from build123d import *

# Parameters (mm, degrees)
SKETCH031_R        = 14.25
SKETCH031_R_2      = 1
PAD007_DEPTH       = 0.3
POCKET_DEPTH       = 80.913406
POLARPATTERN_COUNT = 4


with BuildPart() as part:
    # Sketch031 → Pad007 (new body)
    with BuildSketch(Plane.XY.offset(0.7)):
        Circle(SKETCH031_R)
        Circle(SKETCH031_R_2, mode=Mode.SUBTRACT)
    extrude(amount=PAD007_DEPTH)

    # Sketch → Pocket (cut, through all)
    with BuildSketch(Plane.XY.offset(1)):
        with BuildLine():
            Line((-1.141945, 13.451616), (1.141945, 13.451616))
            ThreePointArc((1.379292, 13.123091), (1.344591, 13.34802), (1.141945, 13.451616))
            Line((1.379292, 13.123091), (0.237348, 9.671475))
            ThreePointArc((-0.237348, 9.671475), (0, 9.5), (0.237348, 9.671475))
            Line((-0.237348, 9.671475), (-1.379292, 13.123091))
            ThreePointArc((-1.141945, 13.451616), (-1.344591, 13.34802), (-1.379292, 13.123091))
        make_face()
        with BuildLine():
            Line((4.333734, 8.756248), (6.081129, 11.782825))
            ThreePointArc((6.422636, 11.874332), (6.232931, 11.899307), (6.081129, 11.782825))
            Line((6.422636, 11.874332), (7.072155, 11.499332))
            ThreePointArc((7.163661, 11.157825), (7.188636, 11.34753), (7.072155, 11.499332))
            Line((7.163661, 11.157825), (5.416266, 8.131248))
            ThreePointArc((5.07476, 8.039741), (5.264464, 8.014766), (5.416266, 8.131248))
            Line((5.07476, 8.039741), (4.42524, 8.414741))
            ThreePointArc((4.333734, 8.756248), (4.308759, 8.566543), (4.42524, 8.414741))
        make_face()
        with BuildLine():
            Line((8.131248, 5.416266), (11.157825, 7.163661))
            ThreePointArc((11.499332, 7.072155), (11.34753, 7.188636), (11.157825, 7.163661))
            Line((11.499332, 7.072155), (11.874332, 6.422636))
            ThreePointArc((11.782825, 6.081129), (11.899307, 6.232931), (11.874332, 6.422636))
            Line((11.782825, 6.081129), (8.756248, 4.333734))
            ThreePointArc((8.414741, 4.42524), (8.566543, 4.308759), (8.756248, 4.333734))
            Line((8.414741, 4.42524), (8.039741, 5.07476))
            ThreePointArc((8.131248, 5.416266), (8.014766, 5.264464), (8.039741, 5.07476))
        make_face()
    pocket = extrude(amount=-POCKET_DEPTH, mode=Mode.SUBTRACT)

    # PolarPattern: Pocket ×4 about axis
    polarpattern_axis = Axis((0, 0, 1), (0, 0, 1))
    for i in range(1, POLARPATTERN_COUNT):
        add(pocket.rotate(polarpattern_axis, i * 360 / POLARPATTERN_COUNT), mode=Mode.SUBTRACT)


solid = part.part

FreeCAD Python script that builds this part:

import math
import FreeCAD as App
import Part
import Sketcher
from FreeCAD import Vector
Q = App.Units.Quantity

doc = App.newDocument("Part")
params = doc.addObject("Spreadsheet::Sheet", "Params")
for row, (alias, value) in enumerate([
    ("sketch1_diameter", "2 mm"),
    ("sketch1_diameter2", "28.5 mm"),
    ("pad1_length", "0.3 mm"),
    ("sketch2_radius", "0.250001 mm"),
    ("sketch2_length", "0.750001 mm"),
], start=1):
    params.set(f"A{row}", alias)
    params.set(f"B{row}", "=" + value)
    params.setAlias(f"B{row}", alias)

body = doc.addObject("PartDesign::Body", "Body")

# Sketch on XY plane
sketch1 = doc.addObject("Sketcher::SketchObject", "Sketch")
body.addObject(sketch1)
sketch1.AttachmentSupport = (doc.XY_Plane, [""])
sketch1.MapMode = "FlatFace"
sketch1.AttachmentOffset = App.Placement(Vector(0, 0, 0.7), App.Rotation())
sketch1.addGeometry([
    Part.Circle(Vector(0, 0, 0), Vector(0, 0, 1), 14.2),
    Part.Circle(Vector(0, 0, 0), Vector(0, 0, 1), 1),
], False)
sketch1.addConstraint([
    Sketcher.Constraint("Coincident", 0, 3, -1, 1),
    Sketcher.Constraint("Coincident", 1, 3, -1, 1),
    Sketcher.Constraint("Diameter", 1, 2.0),
    Sketcher.Constraint("Diameter", 0, 28.5),
])
sketch1.setExpression("Constraints[2]", "Params.sketch1_diameter")
sketch1.setExpression("Constraints[3]", "Params.sketch1_diameter2")
pad1 = doc.addObject("PartDesign::Pad", "Pad")
body.addObject(pad1)
pad1.Profile = sketch1
pad1.setExpression("Length", "Params.pad1_length")

# Sketch on XY plane
sketch2 = doc.addObject("Sketcher::SketchObject", "Sketch001")
body.addObject(sketch2)
sketch2.AttachmentSupport = (doc.XY_Plane, [""])
sketch2.MapMode = "FlatFace"
sketch2.AttachmentOffset = App.Placement(Vector(0, 0, 1), App.Rotation())
sketch2.addGeometry([
    Part.LineSegment(Vector(1.14, 13.45, 0), Vector(-1.14, 13.45, 0)),  # 0
    Part.ArcOfCircle(Part.Circle(Vector(-1.14, 13.2, 0), Vector(0, 0, 1), 0.25), math.radians(90), math.radians(198)),  # 1
    Part.LineSegment(Vector(-1.38, 13.12, 0), Vector(-0.24, 9.67, 0)),  # 2
    Part.ArcOfCircle(Part.Circle(Vector(0, 9.75, 0), Vector(0, 0, 1), 0.25), math.radians(-162), math.radians(-18)),  # 3
    Part.LineSegment(Vector(0.24, 9.67, 0), Vector(1.38, 13.12, 0)),  # 4
    Part.ArcOfCircle(Part.Circle(Vector(1.14, 13.2, 0), Vector(0, 0, 1), 0.25), math.radians(-18), math.radians(90)),  # 5
    Part.LineSegment(Vector(6.08, 11.78, 0), Vector(4.33, 8.76, 0)),  # 6
    Part.ArcOfCircle(Part.Circle(Vector(4.55, 8.63, 0), Vector(0, 0, 1), 0.25), math.radians(150), math.radians(240)),  # 7
    Part.LineSegment(Vector(4.43, 8.41, 0), Vector(5.07, 8.04, 0)),  # 8
    Part.ArcOfCircle(Part.Circle(Vector(5.2, 8.26, 0), Vector(0, 0, 1), 0.25), math.radians(-120), math.radians(-30)),  # 9
    Part.LineSegment(Vector(5.42, 8.13, 0), Vector(7.16, 11.16, 0)),  # 10
    Part.ArcOfCircle(Part.Circle(Vector(6.95, 11.28, 0), Vector(0, 0, 1), 0.25), math.radians(-30), math.radians(60)),  # 11
    Part.LineSegment(Vector(7.07, 11.5, 0), Vector(6.42, 11.87, 0)),  # 12
    Part.ArcOfCircle(Part.Circle(Vector(6.3, 11.66, 0), Vector(0, 0, 1), 0.25), math.radians(60), math.radians(150)),  # 13
    Part.LineSegment(Vector(11.16, 7.16, 0), Vector(8.13, 5.42, 0)),  # 14
    Part.ArcOfCircle(Part.Circle(Vector(8.26, 5.2, 0), Vector(0, 0, 1), 0.25), math.radians(120), math.radians(210)),  # 15
    Part.LineSegment(Vector(8.04, 5.07, 0), Vector(8.41, 4.43, 0)),  # 16
    Part.ArcOfCircle(Part.Circle(Vector(8.63, 4.55, 0), Vector(0, 0, 1), 0.25), math.radians(-150), math.radians(-60)),  # 17
    Part.LineSegment(Vector(8.76, 4.33, 0), Vector(11.78, 6.08, 0)),  # 18
    Part.ArcOfCircle(Part.Circle(Vector(11.66, 6.3, 0), Vector(0, 0, 1), 0.25), math.radians(-60), math.radians(30)),  # 19
    Part.LineSegment(Vector(11.87, 6.42, 0), Vector(11.5, 7.07, 0)),  # 20
    Part.ArcOfCircle(Part.Circle(Vector(11.28, 6.95, 0), Vector(0, 0, 1), 0.25), math.radians(30), math.radians(120)),  # 21
], False)
sketch2.addConstraint([
    Sketcher.Constraint("Coincident", 0, 2, 1, 1),
    Sketcher.Constraint("Coincident", 1, 2, 2, 1),
    Sketcher.Constraint("Coincident", 2, 2, 3, 1),
    Sketcher.Constraint("Coincident", 3, 2, 4, 1),
    Sketcher.Constraint("Coincident", 4, 2, 5, 1),
    Sketcher.Constraint("Coincident", 5, 2, 0, 1),
    Sketcher.Constraint("Coincident", 6, 2, 7, 1),
    Sketcher.Constraint("Coincident", 7, 2, 8, 1),
    Sketcher.Constraint("Tangent", 8, 2, 9, 1),
    Sketcher.Constraint("Coincident", 9, 2, 10, 1),
    Sketcher.Constraint("Coincident", 10, 2, 11, 1),
    Sketcher.Constraint("Coincident", 11, 2, 12, 1),
    Sketcher.Constraint("Tangent", 12, 2, 13, 1),
    Sketcher.Constraint("Tangent", 13, 2, 6, 1),
    Sketcher.Constraint("Coincident", 14, 2, 15, 1),
    Sketcher.Constraint("Tangent", 15, 2, 16, 1),
    Sketcher.Constraint("Coincident", 16, 2, 17, 1),
    Sketcher.Constraint("Coincident", 17, 2, 18, 1),
    Sketcher.Constraint("Tangent", 18, 2, 19, 1),
    Sketcher.Constraint("Tangent", 19, 2, 20, 1),
    Sketcher.Constraint("Coincident", 20, 2, 21, 1),
    Sketcher.Constraint("Coincident", 21, 2, 14, 1),
    Sketcher.Constraint("Horizontal", 0),
    Sketcher.Constraint("Equal", 1, 3),
    Sketcher.Constraint("Equal", 3, 5),
    Sketcher.Constraint("Equal", 5, 7),
    Sketcher.Constraint("Equal", 7, 9),
    Sketcher.Constraint("Equal", 9, 11),
    Sketcher.Constraint("Equal", 11, 13),
    Sketcher.Constraint("Equal", 13, 15),
    Sketcher.Constraint("Equal", 15, 17),
    Sketcher.Constraint("Equal", 17, 19),
    Sketcher.Constraint("Equal", 19, 21),
    Sketcher.Constraint("Symmetric", 2, 2, 3, 2, -2),
    Sketcher.Constraint("Symmetric", 1, 2, 4, 2, -2),
    Sketcher.Constraint("Perpendicular", 6, 8),
    Sketcher.Constraint("Perpendicular", 8, 10),
    Sketcher.Constraint("Perpendicular", 10, 12),
    Sketcher.Constraint("Perpendicular", 14, 16),
    Sketcher.Constraint("Perpendicular", 16, 18),
    Sketcher.Constraint("Perpendicular", 18, 20),
    Sketcher.Constraint("Vertical", 1, 3, 0, 2),
    Sketcher.Constraint("Equal", 6, 10),
    Sketcher.Constraint("Equal", 8, 12),
    Sketcher.Constraint("Equal", 10, 14),
    Sketcher.Constraint("Equal", 12, 16),
    Sketcher.Constraint("Equal", 14, 18),
    Sketcher.Constraint("Equal", 16, 20),
    Sketcher.Constraint("Angle", 6, Q("-119.999999 deg")),
    Sketcher.Constraint("Angle", 14, Q("-150.000001 deg")),
    Sketcher.Constraint("Radius", 1, 0.250001),
    Sketcher.Constraint("DistanceY", 9, 3, 6, 2, 0.500001),
    Sketcher.Constraint("DistanceY", 9, 2, 7, 3, 0.5),
    Sketcher.Constraint("DistanceY", 10, 2, 13, 3, 0.5),
    Sketcher.Constraint("DistanceX", 14, 2, 17, 3, 0.5),
    Sketcher.Constraint("DistanceX", 15, 3, 17, 2, 0.500001),
    Sketcher.Constraint("DistanceX", 21, 3, 18, 2, 0.5),
    Sketcher.Constraint("Distance", 8, 0.750001),
    Sketcher.Constraint("DistanceY", -1, 1, 3, 3, 9.750001),
    Sketcher.Constraint("DistanceX", 0, 2, 0, 1, 2.28389),
    Sketcher.Constraint("DistanceX", 5, 3, 7, 3, 3.408298),
    Sketcher.Constraint("DistanceX", 6, 2, 13, 3, 1.963902),
    Sketcher.Constraint("DistanceX", -1, 1, 7, 3, 4.550242),
    Sketcher.Constraint("DistanceY", -1, 1, 15, 3, 5.19976),
    Sketcher.Constraint("DistanceY", -1, 1, 1, 2, 13.123091),
    Sketcher.Constraint("DistanceY", -1, 1, 7, 2, 8.414741),
    Sketcher.Constraint("DistanceX", -1, 1, 15, 2, 8.039741),
    Sketcher.Constraint("DistanceY", 9, 3, 5, 3, 4.945368),
    Sketcher.Constraint("DistanceY", 2, 2, 1, 3, 3.53014),
])
sketch2.setExpression("Constraints[50]", "Params.sketch2_radius")
sketch2.setExpression("Constraints[57]", "Params.sketch2_length")
pocket1 = doc.addObject("PartDesign::Pocket", "Pocket")
body.addObject(pocket1)
pocket1.Profile = sketch2
pocket1.Type = "ThroughAll"
doc.recompute()

polarpattern = doc.addObject("PartDesign::PolarPattern", "PolarPattern")
body.addObject(polarpattern)
polarpattern.Originals = [pocket1]
polarpattern.Axis = (doc.Z_Axis, [""])
polarpattern.Angle = 360
polarpattern.Occurrences = 4
body.Tip = polarpattern

doc.recompute()
